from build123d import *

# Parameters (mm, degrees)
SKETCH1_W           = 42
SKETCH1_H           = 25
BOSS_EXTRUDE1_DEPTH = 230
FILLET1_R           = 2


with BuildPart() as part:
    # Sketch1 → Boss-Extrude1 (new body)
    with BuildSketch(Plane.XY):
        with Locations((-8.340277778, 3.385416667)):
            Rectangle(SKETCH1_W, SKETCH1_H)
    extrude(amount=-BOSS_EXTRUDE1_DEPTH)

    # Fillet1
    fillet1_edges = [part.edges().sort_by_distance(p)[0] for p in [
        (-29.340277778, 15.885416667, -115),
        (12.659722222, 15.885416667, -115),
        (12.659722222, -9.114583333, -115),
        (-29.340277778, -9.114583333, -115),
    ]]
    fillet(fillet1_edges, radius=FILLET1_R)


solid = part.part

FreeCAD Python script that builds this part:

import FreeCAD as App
import Part
import Sketcher


def edges_at(feature, points):
    """Names of the edges that pass closest to the given points."""
    edges = feature.Shape.Edges
    near = lambda p: min(range(len(edges)), key=lambda i: edges[i].distToShape(Part.Vertex(*p))[0])
    return sorted({f"Edge{near(p) + 1}" for p in points})


def add_polygon(sketch, points):
    """Adds a closed chain of lines whose ends are joined by coincident constraints."""
    first, n = sketch.GeometryCount, len(points)
    for a, b in zip(points, points[1:] + points[:1]):
        sketch.addGeometry(Part.LineSegment(App.Vector(*a, 0), App.Vector(*b, 0)), False)
    for i in range(n):
        sketch.addConstraint(Sketcher.Constraint("Coincident", first + i, 2, first + (i + 1) % n, 1))

doc = App.newDocument("Part")
body = doc.addObject("PartDesign::Body", "Body")

# Sketch on XY plane
sketch1 = doc.addObject("Sketcher::SketchObject", "Sketch")
body.addObject(sketch1)
sketch1.AttachmentSupport = (doc.XY_Plane, [""])
sketch1.MapMode = "FlatFace"
add_polygon(sketch1, [(-29, 16), (-29, -9), (13, -9), (13, 16)])  # lines 0-3
sketch1.addConstraint(Sketcher.Constraint("Vertical", 0))
sketch1.addConstraint(Sketcher.Constraint("Horizontal", 1))
sketch1.addConstraint(Sketcher.Constraint("Vertical", 2))
sketch1.addConstraint(Sketcher.Constraint("Horizontal", 3))
sketch1.addConstraint(Sketcher.Constraint("DistanceX", 1, 1, 1, 2, 42.0))
sketch1.addConstraint(Sketcher.Constraint("DistanceY", 0, 2, 0, 1, 25.0))
sketch1.addConstraint(Sketcher.Constraint("DistanceX", 0, 2, -1, 1, 29.340278))
sketch1.addConstraint(Sketcher.Constraint("DistanceY", 0, 2, -1, 1, 9.114583))
pad1 = doc.addObject("PartDesign::Pad", "Pad")
body.addObject(pad1)
pad1.Profile = sketch1
pad1.Length = 230
pad1.Reversed = True
doc.recompute()

fillet = doc.addObject("PartDesign::Fillet", "Fillet")
body.addObject(fillet)
fillet.Base = (pad1, edges_at(pad1, [
    (-29.34, 15.885, -115),
    (12.66, 15.885, -115),
    (12.66, -9.115, -115),
    (-29.34, -9.115, -115),
]))
fillet.Radius = 2

doc.recompute()
